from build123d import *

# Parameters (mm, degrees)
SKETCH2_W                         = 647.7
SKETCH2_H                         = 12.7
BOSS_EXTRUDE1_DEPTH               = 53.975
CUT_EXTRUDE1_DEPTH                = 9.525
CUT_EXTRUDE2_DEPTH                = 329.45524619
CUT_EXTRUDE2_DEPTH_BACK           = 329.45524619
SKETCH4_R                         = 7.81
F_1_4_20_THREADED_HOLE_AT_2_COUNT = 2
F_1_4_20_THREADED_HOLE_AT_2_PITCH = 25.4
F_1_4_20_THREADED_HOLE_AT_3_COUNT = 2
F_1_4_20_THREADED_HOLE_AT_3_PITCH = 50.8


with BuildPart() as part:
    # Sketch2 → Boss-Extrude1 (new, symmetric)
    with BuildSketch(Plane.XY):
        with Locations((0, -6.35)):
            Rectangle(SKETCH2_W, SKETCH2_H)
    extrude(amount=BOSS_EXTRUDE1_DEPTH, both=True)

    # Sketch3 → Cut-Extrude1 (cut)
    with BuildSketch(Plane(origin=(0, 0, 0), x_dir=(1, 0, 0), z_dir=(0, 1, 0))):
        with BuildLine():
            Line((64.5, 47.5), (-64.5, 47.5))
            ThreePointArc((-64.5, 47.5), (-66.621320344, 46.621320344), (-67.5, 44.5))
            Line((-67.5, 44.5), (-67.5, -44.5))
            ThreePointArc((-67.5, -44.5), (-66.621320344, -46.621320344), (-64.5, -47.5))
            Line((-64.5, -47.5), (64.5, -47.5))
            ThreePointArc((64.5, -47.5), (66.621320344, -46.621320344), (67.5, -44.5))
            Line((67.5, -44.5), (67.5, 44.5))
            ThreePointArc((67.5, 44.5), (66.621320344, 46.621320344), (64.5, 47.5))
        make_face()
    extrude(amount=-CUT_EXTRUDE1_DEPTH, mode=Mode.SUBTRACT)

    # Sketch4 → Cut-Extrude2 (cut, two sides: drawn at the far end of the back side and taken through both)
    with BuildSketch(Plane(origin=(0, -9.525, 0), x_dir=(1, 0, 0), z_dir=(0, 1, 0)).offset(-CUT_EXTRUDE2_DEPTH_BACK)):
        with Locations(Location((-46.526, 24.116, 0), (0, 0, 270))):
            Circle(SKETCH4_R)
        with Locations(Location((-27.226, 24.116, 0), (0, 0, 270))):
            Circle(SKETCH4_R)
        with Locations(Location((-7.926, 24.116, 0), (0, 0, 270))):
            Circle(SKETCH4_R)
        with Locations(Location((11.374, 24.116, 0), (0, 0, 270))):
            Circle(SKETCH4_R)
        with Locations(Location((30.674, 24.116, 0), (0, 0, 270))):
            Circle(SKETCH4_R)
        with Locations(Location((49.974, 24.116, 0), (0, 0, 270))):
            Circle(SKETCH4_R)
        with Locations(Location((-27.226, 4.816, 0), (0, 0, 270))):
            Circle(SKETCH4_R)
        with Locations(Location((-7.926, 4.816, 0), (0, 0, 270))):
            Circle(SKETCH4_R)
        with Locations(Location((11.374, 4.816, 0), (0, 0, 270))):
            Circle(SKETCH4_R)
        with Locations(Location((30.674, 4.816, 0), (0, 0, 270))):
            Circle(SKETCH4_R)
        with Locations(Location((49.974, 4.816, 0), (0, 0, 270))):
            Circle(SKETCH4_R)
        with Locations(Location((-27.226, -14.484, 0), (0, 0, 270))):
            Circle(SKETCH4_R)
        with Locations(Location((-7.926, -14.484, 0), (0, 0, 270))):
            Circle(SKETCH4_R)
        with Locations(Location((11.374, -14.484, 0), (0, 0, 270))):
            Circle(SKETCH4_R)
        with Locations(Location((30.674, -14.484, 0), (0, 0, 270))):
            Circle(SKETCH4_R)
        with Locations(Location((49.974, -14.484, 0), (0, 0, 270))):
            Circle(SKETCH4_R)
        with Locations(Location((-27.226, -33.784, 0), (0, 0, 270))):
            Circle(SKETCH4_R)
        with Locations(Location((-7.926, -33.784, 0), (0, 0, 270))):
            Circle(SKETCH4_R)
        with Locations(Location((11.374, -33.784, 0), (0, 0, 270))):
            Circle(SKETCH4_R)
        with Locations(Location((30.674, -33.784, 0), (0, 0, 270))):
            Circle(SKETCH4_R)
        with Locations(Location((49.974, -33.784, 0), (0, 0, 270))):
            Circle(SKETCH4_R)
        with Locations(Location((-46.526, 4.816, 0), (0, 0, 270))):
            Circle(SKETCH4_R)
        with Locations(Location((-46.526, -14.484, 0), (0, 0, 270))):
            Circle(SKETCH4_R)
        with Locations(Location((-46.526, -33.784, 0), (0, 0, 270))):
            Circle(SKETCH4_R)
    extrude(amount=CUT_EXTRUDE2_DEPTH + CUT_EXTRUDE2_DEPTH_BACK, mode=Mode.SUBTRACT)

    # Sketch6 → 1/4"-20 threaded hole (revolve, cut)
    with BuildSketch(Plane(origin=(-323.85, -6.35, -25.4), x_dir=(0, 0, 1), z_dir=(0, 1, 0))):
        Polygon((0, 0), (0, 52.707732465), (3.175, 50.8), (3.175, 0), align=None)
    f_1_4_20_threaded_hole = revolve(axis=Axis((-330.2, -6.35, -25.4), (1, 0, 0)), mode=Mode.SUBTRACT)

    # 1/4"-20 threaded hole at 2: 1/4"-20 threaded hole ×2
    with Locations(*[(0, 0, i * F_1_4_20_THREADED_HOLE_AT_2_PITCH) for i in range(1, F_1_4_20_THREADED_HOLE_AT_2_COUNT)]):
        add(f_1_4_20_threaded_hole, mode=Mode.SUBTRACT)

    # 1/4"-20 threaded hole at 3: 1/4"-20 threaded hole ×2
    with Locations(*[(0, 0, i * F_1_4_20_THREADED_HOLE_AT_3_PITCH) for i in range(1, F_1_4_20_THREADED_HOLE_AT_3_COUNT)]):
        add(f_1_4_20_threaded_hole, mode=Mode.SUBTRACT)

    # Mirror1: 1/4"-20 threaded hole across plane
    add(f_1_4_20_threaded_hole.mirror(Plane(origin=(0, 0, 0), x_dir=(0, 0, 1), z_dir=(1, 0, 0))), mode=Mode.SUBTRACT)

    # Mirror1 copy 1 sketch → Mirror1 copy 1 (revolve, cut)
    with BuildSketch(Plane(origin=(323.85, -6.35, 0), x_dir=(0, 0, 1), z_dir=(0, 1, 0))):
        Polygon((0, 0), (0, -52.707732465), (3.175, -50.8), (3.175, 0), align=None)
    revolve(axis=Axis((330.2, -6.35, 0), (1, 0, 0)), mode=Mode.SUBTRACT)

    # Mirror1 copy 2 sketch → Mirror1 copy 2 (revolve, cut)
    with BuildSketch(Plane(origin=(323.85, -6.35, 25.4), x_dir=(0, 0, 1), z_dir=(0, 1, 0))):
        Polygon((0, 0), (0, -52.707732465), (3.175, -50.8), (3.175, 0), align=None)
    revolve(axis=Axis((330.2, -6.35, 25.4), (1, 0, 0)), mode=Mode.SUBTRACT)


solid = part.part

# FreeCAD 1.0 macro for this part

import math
import FreeCAD as App
import Part
import Sketcher
from FreeCAD import Vector
Q = App.Units.Quantity

doc = App.newDocument("Part")
params = doc.addObject("Spreadsheet::Sheet", "Params")
for row, (alias, value) in enumerate([
    ("sketch1_width", "25.5 in"),
    ("sketch1_height", "0.5 in"),
    ("pad1_length", "4.25 in"),
    ("pocket1_length", "0.375 in"),
    ("sketch4_width", "2 in"),
    ("sketch4_height", "0.125 in"),
    ("groove_angle", "360 deg"),
    ("linearpattern_pitch", "1 in"),
    ("linearpattern2_pitch", "2 in"),
    ("sketch5_width", "2 in"),
    ("sketch5_height", "0.125 in"),
    ("groove2_angle", "360 deg"),
    ("sketch6_width", "2 in"),
    ("sketch6_height", "0.125 in"),
    ("groove3_angle", "360 deg"),
], start=1):
    params.set(f"A{row}", alias)
    params.set(f"B{row}", "=" + value)
    params.setAlias(f"B{row}", alias)

body = doc.addObject("PartDesign::Body", "Body")

# Sketch on XY plane
sketch1 = body.newObject("Sketcher::SketchObject", "Sketch")
sketch1.AttachmentSupport = (doc.getObject("XY_Plane"), [""])
sketch1.MapMode = "FlatFace"
sketch1.addGeometry([
    Part.LineSegment(Vector(-324, 0, 0), Vector(-324, -13, 0)),
    Part.LineSegment(Vector(-324, -13, 0), Vector(324, -13, 0)),
    Part.LineSegment(Vector(324, -13, 0), Vector(324, 0, 0)),
    Part.LineSegment(Vector(324, 0, 0), Vector(-324, 0, 0)),
], False)
sketch1.addConstraint([
    Sketcher.Constraint("Coincident", 0, 2, 1, 1),
    Sketcher.Constraint("Coincident", 1, 2, 2, 1),
    Sketcher.Constraint("Coincident", 2, 2, 3, 1),
    Sketcher.Constraint("Coincident", 3, 2, 0, 1),
    Sketcher.Constraint("Vertical", 0),
    Sketcher.Constraint("Horizontal", 1),
    Sketcher.Constraint("Vertical", 2),
    Sketcher.Constraint("Horizontal", 3),
    Sketcher.Constraint("Symmetric", 2, 2, 3, 2, -1, 1),
    Sketcher.Constraint("DistanceX", 1, 1, 1, 2, Q("25.5 in")),
    Sketcher.Constraint("DistanceY", 0, 2, 0, 1, Q("0.5 in")),
])
sketch1.setExpression("Constraints[9]", "Params.sketch1_width")
sketch1.setExpression("Constraints[10]", "Params.sketch1_height")
pad1 = body.newObject("PartDesign::Pad", "Pad")
pad1.Profile = sketch1
pad1.setExpression("Length", "Params.pad1_length")
pad1.Midplane = True

# Sketch on XZ plane
sketch2 = body.newObject("Sketcher::SketchObject", "Sketch001")
sketch2.AttachmentSupport = (doc.getObject("XZ_Plane"), [""])
sketch2.MapMode = "FlatFace"
sketch2.addGeometry([
    Part.LineSegment(Vector(64.5, -47.5, 0), Vector(-64.5, -47.5, 0)),  # 0
    Part.ArcOfCircle(Part.Circle(Vector(-64.5, -44.5, 0), Vector(0, 0, 1), 3), math.radians(180), math.radians(270)),  # 1
    Part.LineSegment(Vector(-67.5, -44.5, 0), Vector(-67.5, 44.5, 0)),  # 2
    Part.ArcOfCircle(Part.Circle(Vector(-64.5, 44.5, 0), Vector(0, 0, 1), 3), math.radians(90), math.radians(180)),  # 3
    Part.LineSegment(Vector(-64.5, 47.5, 0), Vector(64.5, 47.5, 0)),  # 4
    Part.ArcOfCircle(Part.Circle(Vector(64.5, 44.5, 0), Vector(0, 0, 1), 3), math.radians(0), math.radians(90)),  # 5
    Part.LineSegment(Vector(67.5, 44.5, 0), Vector(67.5, -44.5, 0)),  # 6
    Part.ArcOfCircle(Part.Circle(Vector(64.5, -44.5, 0), Vector(0, 0, 1), 3), math.radians(-90), math.radians(0)),  # 7
], False)
sketch2.addConstraint([
    Sketcher.Constraint("Tangent", 0, 2, 1, 2),
    Sketcher.Constraint("Tangent", 1, 1, 2, 1),
    Sketcher.Constraint("Tangent", 2, 2, 3, 2),
    Sketcher.Constraint("Tangent", 3, 1, 4, 1),
    Sketcher.Constraint("Tangent", 4, 2, 5, 2),
    Sketcher.Constraint("Tangent", 5, 1, 6, 1),
    Sketcher.Constraint("Tangent", 6, 2, 7, 2),
    Sketcher.Constraint("Tangent", 7, 1, 0, 1),
    Sketcher.Constraint("Horizontal", 0),
    Sketcher.Constraint("Vertical", 2),
    Sketcher.Constraint("Horizontal", 4),
    Sketcher.Constraint("Vertical", 6),
    Sketcher.Constraint("Equal", 1, 3),
    Sketcher.Constraint("Equal", 3, 5),
    Sketcher.Constraint("Equal", 5, 7),
    Sketcher.Constraint("Symmetric", 1, 3, 5, 3, -1, 1),
    Sketcher.Constraint("Radius", 1, 3.0),
    Sketcher.Constraint("DistanceX", 0, 2, 0, 1, 129.0),
    Sketcher.Constraint("DistanceY", 2, 1, 2, 2, 89.0),
])
pocket1 = body.newObject("PartDesign::Pocket", "Pocket")
pocket1.Profile = sketch2
pocket1.setExpression("Length", "Params.pocket1_length")
pocket1.Reversed = True

# Sketch on XZ plane
sketch3 = body.newObject("Sketcher::SketchObject", "Sketch002")
sketch3.AttachmentSupport = (doc.getObject("XZ_Plane"), [""])
sketch3.MapMode = "FlatFace"
sketch3.AttachmentOffset = App.Placement(Vector(0, 0, 0.375 * 25.4), App.Rotation())
sketch3.addGeometry([
    Part.Circle(Vector(-47, -24, 0), Vector(0, 0, 1), 8),  # 0
    Part.Circle(Vector(-27, -24, 0), Vector(0, 0, 1), 8),  # 1
    Part.Circle(Vector(-8, -24, 0), Vector(0, 0, 1), 8),  # 2
    Part.Circle(Vector(11, -24, 0), Vector(0, 0, 1), 8),  # 3
    Part.Circle(Vector(31, -24, 0), Vector(0, 0, 1), 8),  # 4
    Part.Circle(Vector(50, -24, 0), Vector(0, 0, 1), 8),  # 5
    Part.Circle(Vector(-27, -5, 0), Vector(0, 0, 1), 8),  # 6
    Part.Circle(Vector(-8, -5, 0), Vector(0, 0, 1), 8),  # 7
    Part.Circle(Vector(11, -5, 0), Vector(0, 0, 1), 8),  # 8
    Part.Circle(Vector(31, -5, 0), Vector(0, 0, 1), 8),  # 9
    Part.Circle(Vector(50, -5, 0), Vector(0, 0, 1), 8),  # 10
    Part.Circle(Vector(-27, 14, 0), Vector(0, 0, 1), 8),  # 11
    Part.Circle(Vector(-8, 14, 0), Vector(0, 0, 1), 8),  # 12
    Part.Circle(Vector(11, 14, 0), Vector(0, 0, 1), 8),  # 13
    Part.Circle(Vector(31, 14, 0), Vector(0, 0, 1), 8),  # 14
    Part.Circle(Vector(50, 14, 0), Vector(0, 0, 1), 8),  # 15
    Part.Circle(Vector(-27, 34, 0), Vector(0, 0, 1), 8),  # 16
    Part.Circle(Vector(-8, 34, 0), Vector(0, 0, 1), 8),  # 17
    Part.Circle(Vector(11, 34, 0), Vector(0, 0, 1), 8),  # 18
    Part.Circle(Vector(31, 34, 0), Vector(0, 0, 1), 8),  # 19
    Part.Circle(Vector(50, 34, 0), Vector(0, 0, 1), 8),  # 20
    Part.Circle(Vector(-47, -5, 0), Vector(0, 0, 1), 8),  # 21
    Part.Circle(Vector(-47, 14, 0), Vector(0, 0, 1), 8),  # 22
    Part.Circle(Vector(-47, 34, 0), Vector(0, 0, 1), 8),  # 23
], False)
sketch3.addConstraint([
    Sketcher.Constraint("Equal", 0, 1),
    Sketcher.Constraint("Equal", 1, 2),
    Sketcher.Constraint("Equal", 2, 3),
    Sketcher.Constraint("Equal", 3, 4),
    Sketcher.Constraint("Equal", 4, 5),
    Sketcher.Constraint("Equal", 5, 6),
    Sketcher.Constraint("Equal", 6, 7),
    Sketcher.Constraint("Equal", 7, 8),
    Sketcher.Constraint("Equal", 8, 9),
    Sketcher.Constraint("Equal", 9, 10),
    Sketcher.Constraint("Equal", 10, 11),
    Sketcher.Constraint("Equal", 11, 12),
    Sketcher.Constraint("Equal", 12, 13),
    Sketcher.Constraint("Equal", 13, 14),
    Sketcher.Constraint("Equal", 14, 15),
    Sketcher.Constraint("Equal", 15, 16),
    Sketcher.Constraint("Equal", 16, 17),
    Sketcher.Constraint("Equal", 17, 18),
    Sketcher.Constraint("Equal", 18, 19),
    Sketcher.Constraint("Equal", 19, 20),
    Sketcher.Constraint("Equal", 20, 21),
    Sketcher.Constraint("Equal", 21, 22),
    Sketcher.Constraint("Equal", 22, 23),
    Sketcher.Constraint("Horizontal", 0, 3, 1, 3),
    Sketcher.Constraint("Horizontal", 1, 3, 2, 3),
    Sketcher.Constraint("Horizontal", 2, 3, 3, 3),
    Sketcher.Constraint("Horizontal", 3, 3, 4, 3),
    Sketcher.Constraint("Horizontal", 4, 3, 5, 3),
    Sketcher.Constraint("Horizontal", 6, 3, 7, 3),
    Sketcher.Constraint("Horizontal", 7, 3, 8, 3),
    Sketcher.Constraint("Horizontal", 8, 3, 9, 3),
    Sketcher.Constraint("Horizontal", 9, 3, 10, 3),
    Sketcher.Constraint("Horizontal", 11, 3, 12, 3),
    Sketcher.Constraint("Horizontal", 12, 3, 13, 3),
    Sketcher.Constraint("Horizontal", 13, 3, 14, 3),
    Sketcher.Constraint("Horizontal", 14, 3, 15, 3),
    Sketcher.Constraint("Horizontal", 16, 3, 17, 3),
    Sketcher.Constraint("Horizontal", 17, 3, 18, 3),
    Sketcher.Constraint("Horizontal", 18, 3, 19, 3),
    Sketcher.Constraint("Horizontal", 19, 3, 20, 3),
    Sketcher.Constraint("Horizontal", 10, 3, 21, 3),
    Sketcher.Constraint("Horizontal", 15, 3, 22, 3),
    Sketcher.Constraint("Horizontal", 20, 3, 23, 3),
    Sketcher.Constraint("Vertical", 1, 3, 6, 3),
    Sketcher.Constraint("Vertical", 2, 3, 7, 3),
    Sketcher.Constraint("Vertical", 3, 3, 8, 3),
    Sketcher.Constraint("Vertical", 4, 3, 9, 3),
    Sketcher.Constraint("Vertical", 5, 3, 10, 3),
    Sketcher.Constraint("Vertical", 6, 3, 11, 3),
    Sketcher.Constraint("Vertical", 7, 3, 12, 3),
    Sketcher.Constraint("Vertical", 8, 3, 13, 3),
    Sketcher.Constraint("Vertical", 9, 3, 14, 3),
    Sketcher.Constraint("Vertical", 10, 3, 15, 3),
    Sketcher.Constraint("Vertical", 11, 3, 16, 3),
    Sketcher.Constraint("Vertical", 12, 3, 17, 3),
    Sketcher.Constraint("Vertical", 13, 3, 18, 3),
    Sketcher.Constraint("Vertical", 14, 3, 19, 3),
    Sketcher.Constraint("Vertical", 15, 3, 20, 3),
    Sketcher.Constraint("Vertical", 0, 3, 21, 3),
    Sketcher.Constraint("Vertical", 21, 3, 22, 3),
    Sketcher.Constraint("Vertical", 22, 3, 23, 3),
    Sketcher.Constraint("Diameter", 0, 15.62),
    Sketcher.Constraint("DistanceX", 0, 3, -1, 1, 46.526),
    Sketcher.Constraint("DistanceY", 0, 3, -1, 1, 24.116),
    Sketcher.Constraint("DistanceX", 1, 3, -1, 1, 27.226),
    Sketcher.Constraint("DistanceX", 2, 3, -1, 1, 7.926),
    Sketcher.Constraint("DistanceX", -1, 1, 3, 3, 11.374),
    Sketcher.Constraint("DistanceX", -1, 1, 4, 3, 30.674),
    Sketcher.Constraint("DistanceX", -1, 1, 5, 3, 49.974),
    Sketcher.Constraint("DistanceY", 6, 3, -1, 1, 4.816),
    Sketcher.Constraint("DistanceY", -1, 1, 11, 3, 14.484),
    Sketcher.Constraint("DistanceY", -1, 1, 16, 3, 33.784),
])
pocket2 = body.newObject("PartDesign::Pocket", "Pocket001")
pocket2.Profile = sketch3
pocket2.Type = "ThroughAll"
pocket2.Midplane = True

# Sketch on XZ plane
sketch4 = body.newObject("Sketcher::SketchObject", "Sketch003")
sketch4.AttachmentSupport = (doc.getObject("XZ_Plane"), [""])
sketch4.MapMode = "FlatFace"
sketch4.AttachmentOffset = App.Placement(Vector(0, 0, 0.25 * 25.4), App.Rotation())
sketch4.addGeometry([
    Part.LineSegment(Vector(-271.1, -25.4, 0), Vector(-323.9, -25.4, 0)),
    Part.LineSegment(Vector(-323.9, -25.4, 0), Vector(-323.9, -22.2, 0)),
    Part.LineSegment(Vector(-323.9, -22.2, 0), Vector(-273.1, -22.2, 0)),
    Part.LineSegment(Vector(-273.1, -22.2, 0), Vector(-271.1, -25.4, 0)),
], False)
sketch4.addGeometry(Part.LineSegment(Vector(-323.9, -25.4, 0), Vector(-271.1, -25.4, 0)), True)  # axis
sketch4.addConstraint([
    Sketcher.Constraint("Coincident", 0, 2, 1, 1),
    Sketcher.Constraint("Coincident", 1, 2, 2, 1),
    Sketcher.Constraint("Coincident", 2, 2, 3, 1),
    Sketcher.Constraint("Coincident", 3, 2, 0, 1),
    Sketcher.Constraint("Horizontal", 0),
    Sketcher.Constraint("Vertical", 1),
    Sketcher.Constraint("Horizontal", 2),
    Sketcher.Constraint("Horizontal", 4),
    Sketcher.Constraint("Coincident", 4, 1, 0, 2),
    Sketcher.Constraint("Equal", 0, 4),
    Sketcher.Constraint("DistanceX", 2, 1, 2, 2, Q("2 in")),
    Sketcher.Constraint("DistanceY", 0, 2, -1, 1, Q("1 in")),
    Sketcher.Constraint("Angle", 3, Q("-59 deg")),
    Sketcher.Constraint("DistanceY", 1, 1, 1, 2, Q("0.125 in")),
    Sketcher.Constraint("DistanceX", 0, 2, -1, 1, Q("12.75 in")),
])
sketch4.setExpression("Constraints[10]", "Params.sketch4_width")
sketch4.setExpression("Constraints[13]", "Params.sketch4_height")
groove = body.newObject("PartDesign::Groove", "Groove")
groove.Profile = sketch4
groove.ReferenceAxis = (sketch4, ["Axis0"])
groove.setExpression("Angle", "Params.groove_angle")
doc.recompute()

linearpattern = body.newObject("PartDesign::LinearPattern", "LinearPattern")
linearpattern.Originals = [groove]
linearpattern.Direction = (doc.getObject("Z_Axis"), [""])
linearpattern.Mode = "offset"
linearpattern.setExpression("Offset", "Params.linearpattern_pitch")
linearpattern.Occurrences = 2
body.Tip = linearpattern
doc.recompute()

linearpattern2 = body.newObject("PartDesign::LinearPattern", "LinearPattern001")
linearpattern2.Originals = [groove]
linearpattern2.Direction = (doc.getObject("Z_Axis"), [""])
linearpattern2.Mode = "offset"
linearpattern2.setExpression("Offset", "Params.linearpattern2_pitch")
linearpattern2.Occurrences = 2
body.Tip = linearpattern2
doc.recompute()

mirrored = body.newObject("PartDesign::Mirrored", "Mirrored")
mirrored.Originals = [groove]
mirrored.MirrorPlane = (doc.getObject("YZ_Plane"), [""])
body.Tip = mirrored

# Sketch on XZ plane
sketch5 = body.newObject("Sketcher::SketchObject", "Sketch004")
sketch5.AttachmentSupport = (doc.getObject("XZ_Plane"), [""])
sketch5.MapMode = "FlatFace"
sketch5.AttachmentOffset = App.Placement(Vector(0, 0, 0.25 * 25.4), App.Rotation())
sketch5.addGeometry([
    Part.LineSegment(Vector(323.9, 0, 0), Vector(271.1, 0, 0)),
    Part.LineSegment(Vector(271.1, 0, 0), Vector(273.1, 3.2, 0)),
    Part.LineSegment(Vector(273.1, 3.2, 0), Vector(323.9, 3.2, 0)),
    Part.LineSegment(Vector(323.9, 3.2, 0), Vector(323.9, 0, 0)),
], False)
sketch5.addConstraint([
    Sketcher.Constraint("Coincident", 0, 2, 1, 1),
    Sketcher.Constraint("Coincident", 1, 2, 2, 1),
    Sketcher.Constraint("Coincident", 2, 2, 3, 1),
    Sketcher.Constraint("Coincident", 3, 2, 0, 1),
    Sketcher.Constraint("Horizontal", 0),
    Sketcher.Constraint("Horizontal", 2),
    Sketcher.Constraint("Vertical", 3),
    Sketcher.Constraint("PointOnObject", 0, 2, -1),
    Sketcher.Constraint("DistanceX", 2, 1, 2, 2, Q("2 in")),
    Sketcher.Constraint("Angle", 1, Q("59 deg")),
    Sketcher.Constraint("DistanceY", 3, 2, 3, 1, Q("0.125 in")),
    Sketcher.Constraint("DistanceX", -1, 1, 1, 2, Q("10.75 in")),
])
sketch5.setExpression("Constraints[8]", "Params.sketch5_width")
sketch5.setExpression("Constraints[10]", "Params.sketch5_height")
groove2 = body.newObject("PartDesign::Groove", "Groove001")
groove2.Profile = sketch5
groove2.ReferenceAxis = (sketch5, ["H_Axis"])
groove2.setExpression("Angle", "Params.groove2_angle")

# Sketch on XZ plane
sketch6 = body.newObject("Sketcher::SketchObject", "Sketch005")
sketch6.AttachmentSupport = (doc.getObject("XZ_Plane"), [""])
sketch6.MapMode = "FlatFace"
sketch6.AttachmentOffset = App.Placement(Vector(0, 0, 0.25 * 25.4), App.Rotation())
sketch6.addGeometry([
    Part.LineSegment(Vector(323.9, 25.4, 0), Vector(271.1, 25.4, 0)),
    Part.LineSegment(Vector(271.1, 25.4, 0), Vector(273.1, 28.6, 0)),
    Part.LineSegment(Vector(273.1, 28.6, 0), Vector(323.9, 28.6, 0)),
    Part.LineSegment(Vector(323.9, 28.6, 0), Vector(323.9, 25.4, 0)),
], False)
sketch6.addGeometry(Part.LineSegment(Vector(271.1, 25.4, 0), Vector(323.9, 25.4, 0)), True)  # axis
sketch6.addConstraint([
    Sketcher.Constraint("Coincident", 0, 2, 1, 1),
    Sketcher.Constraint("Coincident", 1, 2, 2, 1),
    Sketcher.Constraint("Coincident", 2, 2, 3, 1),
    Sketcher.Constraint("Coincident", 3, 2, 0, 1),
    Sketcher.Constraint("Horizontal", 0),
    Sketcher.Constraint("Horizontal", 2),
    Sketcher.Constraint("Vertical", 3),
    Sketcher.Constraint("Horizontal", 4),
    Sketcher.Constraint("Coincident", 4, 1, 0, 2),
    Sketcher.Constraint("Vertical", 2, 2, 4, 2),
    Sketcher.Constraint("DistanceX", 2, 1, 2, 2, Q("2 in")),
    Sketcher.Constraint("DistanceY", -1, 1, 0, 2, Q("1 in")),
    Sketcher.Constraint("Angle", 1, Q("59 deg")),
    Sketcher.Constraint("DistanceY", 3, 2, 3, 1, Q("0.125 in")),
    Sketcher.Constraint("DistanceX", -1, 1, 1, 2, Q("10.75 in")),
])
sketch6.setExpression("Constraints[10]", "Params.sketch6_width")
sketch6.setExpression("Constraints[13]", "Params.sketch6_height")
groove3 = body.newObject("PartDesign::Groove", "Groove002")
groove3.Profile = sketch6
groove3.ReferenceAxis = (sketch6, ["Axis0"])
groove3.setExpression("Angle", "Params.groove3_angle")

doc.recompute()
